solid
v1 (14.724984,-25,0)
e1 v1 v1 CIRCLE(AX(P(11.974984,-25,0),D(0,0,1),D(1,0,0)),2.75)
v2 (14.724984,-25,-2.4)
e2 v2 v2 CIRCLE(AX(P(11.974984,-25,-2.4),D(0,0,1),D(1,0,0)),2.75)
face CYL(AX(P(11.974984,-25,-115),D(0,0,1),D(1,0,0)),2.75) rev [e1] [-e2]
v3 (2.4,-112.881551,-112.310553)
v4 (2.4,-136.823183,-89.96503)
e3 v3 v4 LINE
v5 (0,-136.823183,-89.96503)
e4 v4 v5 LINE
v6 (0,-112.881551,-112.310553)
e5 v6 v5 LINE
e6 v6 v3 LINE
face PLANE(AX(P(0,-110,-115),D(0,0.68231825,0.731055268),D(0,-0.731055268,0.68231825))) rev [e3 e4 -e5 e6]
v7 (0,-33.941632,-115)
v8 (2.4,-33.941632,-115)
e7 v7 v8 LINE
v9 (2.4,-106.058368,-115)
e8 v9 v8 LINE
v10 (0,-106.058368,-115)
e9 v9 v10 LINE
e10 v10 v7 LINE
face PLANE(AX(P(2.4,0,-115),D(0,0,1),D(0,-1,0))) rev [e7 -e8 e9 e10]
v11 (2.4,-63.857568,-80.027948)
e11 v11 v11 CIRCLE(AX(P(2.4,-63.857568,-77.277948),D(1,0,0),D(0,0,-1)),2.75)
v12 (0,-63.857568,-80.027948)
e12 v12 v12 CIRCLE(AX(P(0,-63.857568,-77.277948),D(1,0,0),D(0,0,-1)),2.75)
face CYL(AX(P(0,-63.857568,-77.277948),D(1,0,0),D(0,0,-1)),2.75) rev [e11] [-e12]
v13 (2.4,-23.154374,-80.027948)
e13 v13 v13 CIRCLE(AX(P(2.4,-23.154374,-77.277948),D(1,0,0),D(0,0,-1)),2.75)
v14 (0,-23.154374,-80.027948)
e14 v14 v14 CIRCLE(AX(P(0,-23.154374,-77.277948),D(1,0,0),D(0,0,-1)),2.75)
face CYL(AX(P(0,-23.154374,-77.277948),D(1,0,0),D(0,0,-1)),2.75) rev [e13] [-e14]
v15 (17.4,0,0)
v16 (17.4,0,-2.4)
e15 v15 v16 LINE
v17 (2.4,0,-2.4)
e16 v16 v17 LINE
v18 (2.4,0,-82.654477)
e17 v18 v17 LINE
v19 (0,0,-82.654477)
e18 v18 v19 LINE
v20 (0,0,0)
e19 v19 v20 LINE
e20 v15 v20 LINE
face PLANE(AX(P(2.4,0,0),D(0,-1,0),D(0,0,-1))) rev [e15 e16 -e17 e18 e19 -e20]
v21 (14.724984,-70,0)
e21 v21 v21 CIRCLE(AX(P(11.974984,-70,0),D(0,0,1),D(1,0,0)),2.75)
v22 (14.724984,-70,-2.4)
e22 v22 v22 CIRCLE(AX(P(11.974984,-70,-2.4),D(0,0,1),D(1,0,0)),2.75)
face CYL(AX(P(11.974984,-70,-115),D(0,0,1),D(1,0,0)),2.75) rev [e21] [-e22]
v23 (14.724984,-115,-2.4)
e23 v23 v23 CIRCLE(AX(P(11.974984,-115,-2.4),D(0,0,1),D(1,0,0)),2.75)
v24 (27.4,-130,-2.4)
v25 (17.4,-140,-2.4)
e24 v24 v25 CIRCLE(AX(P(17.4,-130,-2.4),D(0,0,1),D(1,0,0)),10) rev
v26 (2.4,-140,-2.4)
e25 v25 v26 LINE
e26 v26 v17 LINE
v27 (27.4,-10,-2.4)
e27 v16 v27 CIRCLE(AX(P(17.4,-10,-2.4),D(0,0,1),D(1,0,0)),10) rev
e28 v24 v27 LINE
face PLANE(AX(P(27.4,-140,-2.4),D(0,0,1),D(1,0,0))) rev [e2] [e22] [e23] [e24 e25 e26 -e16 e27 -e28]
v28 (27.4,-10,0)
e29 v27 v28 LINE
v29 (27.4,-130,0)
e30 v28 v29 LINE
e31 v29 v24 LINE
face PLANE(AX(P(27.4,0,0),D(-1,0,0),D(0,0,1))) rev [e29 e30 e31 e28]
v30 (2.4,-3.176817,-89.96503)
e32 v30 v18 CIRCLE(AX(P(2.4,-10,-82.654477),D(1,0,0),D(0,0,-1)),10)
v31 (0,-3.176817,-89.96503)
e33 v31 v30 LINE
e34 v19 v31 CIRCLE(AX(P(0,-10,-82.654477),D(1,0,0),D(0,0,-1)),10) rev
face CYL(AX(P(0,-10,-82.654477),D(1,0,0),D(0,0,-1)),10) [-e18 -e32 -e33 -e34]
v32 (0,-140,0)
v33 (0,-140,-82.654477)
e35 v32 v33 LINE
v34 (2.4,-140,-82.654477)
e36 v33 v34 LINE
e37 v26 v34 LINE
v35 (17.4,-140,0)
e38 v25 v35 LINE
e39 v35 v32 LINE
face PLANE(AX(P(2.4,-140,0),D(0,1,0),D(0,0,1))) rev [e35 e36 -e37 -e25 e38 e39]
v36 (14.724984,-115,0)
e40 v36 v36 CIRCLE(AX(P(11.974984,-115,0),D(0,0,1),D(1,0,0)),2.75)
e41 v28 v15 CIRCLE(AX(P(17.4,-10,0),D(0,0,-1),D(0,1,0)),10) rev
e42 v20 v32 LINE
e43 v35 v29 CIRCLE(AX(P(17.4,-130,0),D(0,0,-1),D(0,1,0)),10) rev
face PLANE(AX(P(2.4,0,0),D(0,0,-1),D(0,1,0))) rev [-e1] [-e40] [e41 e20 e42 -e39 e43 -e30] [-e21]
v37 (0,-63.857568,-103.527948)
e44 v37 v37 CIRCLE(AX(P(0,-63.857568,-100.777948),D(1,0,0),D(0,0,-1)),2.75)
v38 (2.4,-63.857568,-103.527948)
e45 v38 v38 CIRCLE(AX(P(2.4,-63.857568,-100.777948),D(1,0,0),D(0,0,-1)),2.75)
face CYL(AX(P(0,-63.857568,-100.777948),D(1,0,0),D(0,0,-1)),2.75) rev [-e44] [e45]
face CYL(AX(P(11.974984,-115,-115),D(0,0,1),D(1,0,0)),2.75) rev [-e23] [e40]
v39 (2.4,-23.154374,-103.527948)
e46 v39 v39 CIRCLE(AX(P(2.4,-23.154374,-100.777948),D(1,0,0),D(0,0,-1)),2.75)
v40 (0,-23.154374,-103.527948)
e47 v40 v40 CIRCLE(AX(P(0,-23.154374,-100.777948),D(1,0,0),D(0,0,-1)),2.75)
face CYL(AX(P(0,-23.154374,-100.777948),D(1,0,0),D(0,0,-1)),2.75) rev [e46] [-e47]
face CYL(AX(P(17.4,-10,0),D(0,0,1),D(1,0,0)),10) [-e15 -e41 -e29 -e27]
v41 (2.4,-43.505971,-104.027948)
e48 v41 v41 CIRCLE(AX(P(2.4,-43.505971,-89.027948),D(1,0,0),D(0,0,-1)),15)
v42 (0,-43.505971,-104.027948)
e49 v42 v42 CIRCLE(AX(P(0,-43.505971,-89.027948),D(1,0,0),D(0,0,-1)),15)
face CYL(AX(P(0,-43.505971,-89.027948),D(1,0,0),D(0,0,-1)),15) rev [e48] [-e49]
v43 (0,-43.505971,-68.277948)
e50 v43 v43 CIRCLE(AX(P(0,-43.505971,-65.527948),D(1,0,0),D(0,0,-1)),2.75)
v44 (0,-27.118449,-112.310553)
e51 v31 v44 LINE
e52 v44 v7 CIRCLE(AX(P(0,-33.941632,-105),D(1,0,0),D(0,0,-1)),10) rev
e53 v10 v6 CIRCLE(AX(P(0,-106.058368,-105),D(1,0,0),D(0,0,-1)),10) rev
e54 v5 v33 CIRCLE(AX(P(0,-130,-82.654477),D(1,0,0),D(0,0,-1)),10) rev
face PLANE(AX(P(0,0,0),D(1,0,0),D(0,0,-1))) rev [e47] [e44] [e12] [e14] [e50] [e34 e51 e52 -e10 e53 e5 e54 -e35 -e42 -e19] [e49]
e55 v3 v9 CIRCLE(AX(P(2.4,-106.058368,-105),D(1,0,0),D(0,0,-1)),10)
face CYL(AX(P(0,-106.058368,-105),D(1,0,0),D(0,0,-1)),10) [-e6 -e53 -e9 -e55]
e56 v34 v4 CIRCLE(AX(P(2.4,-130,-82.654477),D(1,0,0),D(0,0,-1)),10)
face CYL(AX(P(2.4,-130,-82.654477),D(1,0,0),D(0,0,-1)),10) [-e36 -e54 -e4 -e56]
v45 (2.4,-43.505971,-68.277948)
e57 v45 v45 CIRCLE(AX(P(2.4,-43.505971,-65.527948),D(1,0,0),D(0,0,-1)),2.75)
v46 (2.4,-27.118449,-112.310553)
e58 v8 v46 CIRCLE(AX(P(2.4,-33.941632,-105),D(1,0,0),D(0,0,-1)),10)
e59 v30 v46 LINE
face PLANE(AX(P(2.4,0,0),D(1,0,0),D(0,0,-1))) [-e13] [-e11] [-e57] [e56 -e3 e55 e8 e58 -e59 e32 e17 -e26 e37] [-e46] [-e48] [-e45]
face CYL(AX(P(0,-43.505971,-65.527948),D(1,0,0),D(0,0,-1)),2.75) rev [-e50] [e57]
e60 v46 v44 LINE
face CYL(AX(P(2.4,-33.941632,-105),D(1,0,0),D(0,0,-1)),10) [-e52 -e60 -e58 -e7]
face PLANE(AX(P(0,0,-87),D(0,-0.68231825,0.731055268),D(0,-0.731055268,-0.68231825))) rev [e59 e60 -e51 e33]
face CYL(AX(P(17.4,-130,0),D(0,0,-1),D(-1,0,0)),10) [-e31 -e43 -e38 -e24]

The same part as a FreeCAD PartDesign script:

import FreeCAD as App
import Part
import Sketcher
Q = App.Units.Quantity


def edges_at(feature, points):
    """Names of the edges that pass closest to the given points."""
    edges = feature.Shape.Edges
    near = lambda p: min(range(len(edges)), key=lambda i: edges[i].distToShape(Part.Vertex(*p))[0])
    return sorted({f"Edge{near(p) + 1}" for p in points})

doc = App.newDocument("Part")
body = doc.addObject("PartDesign::Body", "Body")

sketch1 = body.newObject("Sketcher::SketchObject", "Sketch")
sketch1.AttachmentSupport = (doc.getObject("YZ_Plane"), [""])
sketch1.MapMode = "FlatFace"
sketch1.addGeometry(Part.LineSegment(App.Vector(0, 0, 0), App.Vector(-140, 0, 0)), False)
sketch1.addGeometry(Part.LineSegment(App.Vector(-140, 0, 0), App.Vector(-140, -115, 0)), False)
sketch1.addGeometry(Part.LineSegment(App.Vector(-140, -115, 0), App.Vector(0, -115, 0)), False)
sketch1.addGeometry(Part.LineSegment(App.Vector(0, -115, 0), App.Vector(0, 0, 0)), False)
sketch1.addConstraint(Sketcher.Constraint("Coincident", 0, 2, 1, 1))
sketch1.addConstraint(Sketcher.Constraint("Coincident", 1, 2, 2, 1))
sketch1.addConstraint(Sketcher.Constraint("Coincident", 2, 2, 3, 1))
sketch1.addConstraint(Sketcher.Constraint("Coincident", 3, 2, 0, 1))
sketch1.addConstraint(Sketcher.Constraint("Horizontal", 0))
sketch1.addConstraint(Sketcher.Constraint("Vertical", 1))
sketch1.addConstraint(Sketcher.Constraint("Horizontal", 2))
sketch1.addConstraint(Sketcher.Constraint("Vertical", 3))
sketch1.addConstraint(Sketcher.Constraint("Coincident", 3, 2, -1, 1))
sketch1.addConstraint(Sketcher.Constraint("DistanceX", 0, 2, 0, 1, Q("140 mm")))
sketch1.addConstraint(Sketcher.Constraint("DistanceY", 1, 2, 1, 1, Q("115 mm")))
pad1 = body.newObject("PartDesign::Pad", "Pad")
pad1.Profile = sketch1
pad1.Length = 2.4

sketch2 = body.newObject("Sketcher::SketchObject", "Sketch001")
sketch2.AttachmentSupport = (doc.getObject("YZ_Plane"), [""])
sketch2.MapMode = "FlatFace"
sketch2.AttachmentOffset = App.Placement(App.Vector(0, 0, 2.4), App.Rotation())
sketch2.addGeometry(Part.LineSegment(App.Vector(0, -87, 0), App.Vector(-30, -115, 0)), False)
sketch2.addGeometry(Part.LineSegment(App.Vector(-30, -115, 0), App.Vector(-33, -143, 0)), False)
sketch2.addGeometry(Part.LineSegment(App.Vector(-33, -143, 0), App.Vector(15, -143, 0)), False)
sketch2.addGeometry(Part.LineSegment(App.Vector(15, -143, 0), App.Vector(0, -87, 0)), False)
sketch2.addGeometry(Part.LineSegment(App.Vector(-110, -115, 0), App.Vector(-140, -87, 0)), False)
sketch2.addGeometry(Part.LineSegment(App.Vector(-140, -87, 0), App.Vector(-153, -87, 0)), False)
sketch2.addGeometry(Part.LineSegment(App.Vector(-153, -87, 0), App.Vector(-153, -136, 0)), False)
sketch2.addGeometry(Part.LineSegment(App.Vector(-153, -136, 0), App.Vector(-110, -115, 0)), False)
sketch2.addConstraint(Sketcher.Constraint("Coincident", 0, 2, 1, 1))
sketch2.addConstraint(Sketcher.Constraint("Coincident", 1, 2, 2, 1))
sketch2.addConstraint(Sketcher.Constraint("Coincident", 2, 2, 3, 1))
sketch2.addConstraint(Sketcher.Constraint("Coincident", 3, 2, 0, 1))
sketch2.addConstraint(Sketcher.Constraint("Coincident", 4, 2, 5, 1))
sketch2.addConstraint(Sketcher.Constraint("Coincident", 5, 2, 6, 1))
sketch2.addConstraint(Sketcher.Constraint("Coincident", 6, 2, 7, 1))
sketch2.addConstraint(Sketcher.Constraint("Coincident", 7, 2, 4, 1))
sketch2.addConstraint(Sketcher.Constraint("Horizontal", 2))
sketch2.addConstraint(Sketcher.Constraint("Horizontal", 5))
sketch2.addConstraint(Sketcher.Constraint("Vertical", 6))
sketch2.addConstraint(Sketcher.Constraint("PointOnObject", 3, 2, -2))
sketch2.addConstraint(Sketcher.Constraint("Horizontal", 3, 2, 4, 2))
sketch2.addConstraint(Sketcher.Constraint("Horizontal", 0, 2, 7, 2))
sketch2.addConstraint(Sketcher.Constraint("Equal", 0, 4))
sketch2.addConstraint(Sketcher.Constraint("DistanceX", 0, 2, -1, 1, Q("30 mm")))
sketch2.addConstraint(Sketcher.Constraint("DistanceY", 0, 2, -1, 1, Q("115 mm")))
sketch2.addConstraint(Sketcher.Constraint("DistanceY", 3, 2, -1, 1, Q("87 mm")))
sketch2.addConstraint(Sketcher.Constraint("DistanceX", 4, 2, -1, 1, Q("140 mm")))
sketch2.addConstraint(Sketcher.Constraint("DistanceX", 5, 2, 5, 1, Q("12.66111 mm")))
sketch2.addConstraint(Sketcher.Constraint("DistanceY", 1, 2, -1, 1, Q("142.6162 mm")))
sketch2.addConstraint(Sketcher.Constraint("DistanceX", 2, 1, 2, 2, Q("47.380962 mm")))
sketch2.addConstraint(Sketcher.Constraint("DistanceY", 6, 2, 6, 1, Q("49.310005 mm")))
sketch2.addConstraint(Sketcher.Constraint("Distance", 1, Q("27.729615 mm")))
pocket1 = body.newObject("PartDesign::Pocket", "Pocket")
pocket1.Profile = sketch2
pocket1.Type = "ThroughAll"
doc.recompute()

fillet = body.newObject("PartDesign::Fillet", "Fillet")
fillet.Base = (pocket1, edges_at(pocket1, [
    (1.2, 0, -87),
    (1.2, -30, -115),
    (1.2, -110, -115),
    (1.2, -140, -87),
]))
fillet.Radius = 10

sketch3 = body.newObject("Sketcher::SketchObject", "Sketch002")
sketch3.AttachmentSupport = (doc.getObject("YZ_Plane"), [""])
sketch3.MapMode = "FlatFace"
sketch3.AttachmentOffset = App.Placement(App.Vector(0, 0, 2.4), App.Rotation())
sketch3.addGeometry(Part.LineSegment(App.Vector(0, 0, 0), App.Vector(-140, 0, 0)), False)
sketch3.addGeometry(Part.LineSegment(App.Vector(-140, 0, 0), App.Vector(-140, -2.4, 0)), False)
sketch3.addGeometry(Part.LineSegment(App.Vector(-140, -2.4, 0), App.Vector(0, -2.4, 0)), False)
sketch3.addGeometry(Part.LineSegment(App.Vector(0, -2.4, 0), App.Vector(0, 0, 0)), False)
sketch3.addConstraint(Sketcher.Constraint("Coincident", 0, 2, 1, 1))
sketch3.addConstraint(Sketcher.Constraint("Coincident", 1, 2, 2, 1))
sketch3.addConstraint(Sketcher.Constraint("Coincident", 2, 2, 3, 1))
sketch3.addConstraint(Sketcher.Constraint("Coincident", 3, 2, 0, 1))
sketch3.addConstraint(Sketcher.Constraint("Horizontal", 0))
sketch3.addConstraint(Sketcher.Constraint("Vertical", 1))
sketch3.addConstraint(Sketcher.Constraint("Horizontal", 2))
sketch3.addConstraint(Sketcher.Constraint("Vertical", 3))
sketch3.addConstraint(Sketcher.Constraint("Coincident", 3, 2, -1, 1))
sketch3.addConstraint(Sketcher.Constraint("DistanceX", 0, 2, 0, 1, Q("140 mm")))
sketch3.addConstraint(Sketcher.Constraint("DistanceY", 1, 2, 1, 1, Q("2.4 mm")))
pad2 = body.newObject("PartDesign::Pad", "Pad001")
pad2.Profile = sketch3
pad2.Length = 25
doc.recompute()

fillet2 = body.newObject("PartDesign::Fillet", "Fillet001")
fillet2.Base = (pad2, edges_at(pad2, [(27.4, -140, -1.2), (27.4, 0, -1.2)]))
fillet2.Radius = 10

sketch4 = body.newObject("Sketcher::SketchObject", "Sketch003")
sketch4.AttachmentSupport = (doc.getObject("XY_Plane"), [""])
sketch4.MapMode = "FlatFace"
sketch4.addGeometry(Part.Circle(App.Vector(12, -70, 0), App.Vector(0, 0, 1), 2.8), False)
sketch4.addGeometry(Part.Circle(App.Vector(12, -25, 0), App.Vector(0, 0, 1), 2.8), False)
sketch4.addGeometry(Part.Circle(App.Vector(12, -115, 0), App.Vector(0, 0, 1), 2.8), False)
sketch4.addConstraint(Sketcher.Constraint("Equal", 0, 1))
sketch4.addConstraint(Sketcher.Constraint("Equal", 1, 2))
sketch4.addConstraint(Sketcher.Constraint("Vertical", 0, 3, 1, 3))
sketch4.addConstraint(Sketcher.Constraint("Vertical", 1, 3, 2, 3))
sketch4.addConstraint(Sketcher.Constraint("Diameter", 0, Q("5.5 mm")))
sketch4.addConstraint(Sketcher.Constraint("DistanceY", 0, 3, -1, 1, Q("70 mm")))
sketch4.addConstraint(Sketcher.Constraint("DistanceY", 1, 3, -1, 1, Q("25 mm")))
sketch4.addConstraint(Sketcher.Constraint("DistanceY", 2, 3, -1, 1, Q("115 mm")))
sketch4.addConstraint(Sketcher.Constraint("DistanceX", -1, 1, 0, 3, Q("11.974984 mm")))
pocket2 = body.newObject("PartDesign::Pocket", "Pocket001")
pocket2.Profile = sketch4
pocket2.Type = "ThroughAll"

sketch5 = body.newObject("Sketcher::SketchObject", "Sketch004")
sketch5.AttachmentSupport = (doc.getObject("YZ_Plane"), [""])
sketch5.MapMode = "FlatFace"
sketch5.AttachmentOffset = App.Placement(App.Vector(0, 0, 2.4), App.Rotation())
sketch5.addGeometry(Part.Circle(App.Vector(-43.5, -89, 0), App.Vector(0, 0, 1), 15), False)
sketch5.addGeometry(Part.Circle(App.Vector(-23.2, -77.3, 0), App.Vector(0, 0, 1), 2.8), False)
sketch5.addGeometry(Part.Circle(App.Vector(-23.2, -100.8, 0), App.Vector(0, 0, 1), 2.8), False)
sketch5.addGeometry(Part.Circle(App.Vector(-43.5, -65.5, 0), App.Vector(0, 0, 1), 2.8), False)
sketch5.addGeometry(Part.Circle(App.Vector(-63.9, -77.3, 0), App.Vector(0, 0, 1), 2.8), False)
sketch5.addGeometry(Part.Circle(App.Vector(-63.9, -100.8, 0), App.Vector(0, 0, 1), 2.8), False)
sketch5.addConstraint(Sketcher.Constraint("Equal", 1, 2))
sketch5.addConstraint(Sketcher.Constraint("Equal", 2, 3))
sketch5.addConstraint(Sketcher.Constraint("Equal", 3, 4))
sketch5.addConstraint(Sketcher.Constraint("Equal", 4, 5))
sketch5.addConstraint(Sketcher.Constraint("Horizontal", 1, 3, 4, 3))
sketch5.addConstraint(Sketcher.Constraint("Horizontal", 2, 3, 5, 3))
sketch5.addConstraint(Sketcher.Constraint("Vertical", 1, 3, 2, 3))
sketch5.addConstraint(Sketcher.Constraint("Vertical", 0, 3, 3, 3))
sketch5.addConstraint(Sketcher.Constraint("Vertical", 4, 3, 5, 3))
sketch5.addConstraint(Sketcher.Constraint("Diameter", 0, Q("30 mm")))
sketch5.addConstraint(Sketcher.Constraint("Diameter", 1, Q("5.5 mm")))
sketch5.addConstraint(Sketcher.Constraint("DistanceY", 2, 3, 1, 3, Q("23.5 mm")))
sketch5.addConstraint(Sketcher.Constraint("DistanceY", 0, 3, 3, 3, Q("23.5 mm")))
sketch5.addConstraint(Sketcher.Constraint("DistanceY", 0, 3, 1, 3, Q("11.75 mm")))
sketch5.addConstraint(Sketcher.Constraint("DistanceX", 0, 3, -1, 1, Q("43.505971 mm")))
sketch5.addConstraint(Sketcher.Constraint("DistanceY", 0, 3, -1, 1, Q("89.027948 mm")))
sketch5.addConstraint(Sketcher.Constraint("DistanceX", 1, 3, -1, 1, Q("23.154374 mm")))
sketch5.addConstraint(Sketcher.Constraint("DistanceX", 4, 3, -1, 1, Q("63.857568 mm")))
pocket3 = body.newObject("PartDesign::Pocket", "Pocket002")
pocket3.Profile = sketch5
pocket3.Type = "ThroughAll"

doc.recompute()
